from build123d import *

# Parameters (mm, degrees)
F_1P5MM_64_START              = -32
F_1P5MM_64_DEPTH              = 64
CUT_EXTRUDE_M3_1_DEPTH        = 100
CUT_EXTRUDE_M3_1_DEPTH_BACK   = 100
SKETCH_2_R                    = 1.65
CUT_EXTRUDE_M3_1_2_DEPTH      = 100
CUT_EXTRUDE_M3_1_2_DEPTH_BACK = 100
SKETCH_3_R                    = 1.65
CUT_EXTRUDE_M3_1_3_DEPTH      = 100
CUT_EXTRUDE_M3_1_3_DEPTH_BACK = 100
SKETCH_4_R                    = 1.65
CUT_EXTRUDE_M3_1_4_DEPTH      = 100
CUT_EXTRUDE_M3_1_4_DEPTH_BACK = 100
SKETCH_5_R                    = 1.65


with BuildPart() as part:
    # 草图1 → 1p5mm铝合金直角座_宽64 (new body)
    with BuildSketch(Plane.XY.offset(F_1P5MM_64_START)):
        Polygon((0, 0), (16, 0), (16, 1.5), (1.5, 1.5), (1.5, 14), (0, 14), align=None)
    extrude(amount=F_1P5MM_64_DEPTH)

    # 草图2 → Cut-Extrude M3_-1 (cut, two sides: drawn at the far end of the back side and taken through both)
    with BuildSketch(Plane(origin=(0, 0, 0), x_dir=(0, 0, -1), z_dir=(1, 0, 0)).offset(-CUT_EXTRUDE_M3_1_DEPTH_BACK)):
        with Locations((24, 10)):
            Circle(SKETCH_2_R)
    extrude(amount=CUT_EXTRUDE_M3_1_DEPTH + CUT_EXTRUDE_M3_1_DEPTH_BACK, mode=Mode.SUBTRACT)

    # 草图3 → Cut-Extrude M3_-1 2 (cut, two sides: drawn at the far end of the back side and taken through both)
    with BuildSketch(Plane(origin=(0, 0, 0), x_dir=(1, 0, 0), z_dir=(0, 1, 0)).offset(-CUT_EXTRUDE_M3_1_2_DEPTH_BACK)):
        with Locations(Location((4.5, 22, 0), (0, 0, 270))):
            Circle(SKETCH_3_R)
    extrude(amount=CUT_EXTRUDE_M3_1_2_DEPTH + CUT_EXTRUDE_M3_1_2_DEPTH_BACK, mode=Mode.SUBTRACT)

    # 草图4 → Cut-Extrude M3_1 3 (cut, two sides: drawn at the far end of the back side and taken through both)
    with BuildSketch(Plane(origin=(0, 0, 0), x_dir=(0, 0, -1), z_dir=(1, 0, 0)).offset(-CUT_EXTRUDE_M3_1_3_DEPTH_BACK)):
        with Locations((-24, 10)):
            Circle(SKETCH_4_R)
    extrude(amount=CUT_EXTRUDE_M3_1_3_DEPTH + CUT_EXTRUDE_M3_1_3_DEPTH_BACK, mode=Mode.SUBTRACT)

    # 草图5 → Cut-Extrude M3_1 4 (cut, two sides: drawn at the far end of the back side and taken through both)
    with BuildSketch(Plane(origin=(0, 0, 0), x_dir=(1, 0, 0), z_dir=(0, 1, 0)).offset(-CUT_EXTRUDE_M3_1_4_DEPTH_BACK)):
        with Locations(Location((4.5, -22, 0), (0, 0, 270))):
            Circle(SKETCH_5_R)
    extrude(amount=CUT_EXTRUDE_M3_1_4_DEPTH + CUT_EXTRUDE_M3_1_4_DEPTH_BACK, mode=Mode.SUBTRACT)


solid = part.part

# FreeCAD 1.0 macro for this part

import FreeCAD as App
import Part
import Sketcher
Q = App.Units.Quantity

doc = App.newDocument("Part")
body = doc.addObject("PartDesign::Body", "Body")

sketch1 = body.newObject("Sketcher::SketchObject", "Sketch")
sketch1.AttachmentSupport = (doc.getObject("XY_Plane"), [""])
sketch1.MapMode = "FlatFace"
sketch1.AttachmentOffset = App.Placement(App.Vector(0, 0, -32), App.Rotation())
sketch1.addGeometry([
    Part.LineSegment(App.Vector(0, 0, 0), App.Vector(16, 0, 0)),
    Part.LineSegment(App.Vector(16, 0, 0), App.Vector(16, 1.5, 0)),
    Part.LineSegment(App.Vector(16, 1.5, 0), App.Vector(1.5, 1.5, 0)),
    Part.LineSegment(App.Vector(1.5, 1.5, 0), App.Vector(1.5, 14, 0)),
    Part.LineSegment(App.Vector(1.5, 14, 0), App.Vector(0, 14, 0)),
    Part.LineSegment(App.Vector(0, 14, 0), App.Vector(0, 0, 0)),
], False)
sketch1.addConstraint([
    Sketcher.Constraint("Coincident", 0, 2, 1, 1),
    Sketcher.Constraint("Coincident", 1, 2, 2, 1),
    Sketcher.Constraint("Coincident", 2, 2, 3, 1),
    Sketcher.Constraint("Coincident", 3, 2, 4, 1),
    Sketcher.Constraint("Coincident", 4, 2, 5, 1),
    Sketcher.Constraint("Coincident", 5, 2, 0, 1),
    Sketcher.Constraint("Horizontal", 0),
    Sketcher.Constraint("Vertical", 1),
    Sketcher.Constraint("Horizontal", 2),
    Sketcher.Constraint("Vertical", 3),
    Sketcher.Constraint("Horizontal", 4),
    Sketcher.Constraint("Vertical", 5),
    Sketcher.Constraint("Coincident", 5, 2, -1, 1),
    Sketcher.Constraint("Equal", 4, 1),
    Sketcher.Constraint("DistanceX", 0, 1, 0, 2, Q("16 mm")),
    Sketcher.Constraint("DistanceY", 5, 2, 5, 1, Q("14 mm")),
    Sketcher.Constraint("DistanceX", 2, 2, 2, 1, Q("14.5 mm")),
])
pad1 = body.newObject("PartDesign::Pad", "Pad")
pad1.Profile = sketch1
pad1.Length = 64

sketch2 = body.newObject("Sketcher::SketchObject", "Sketch001")
sketch2.AttachmentSupport = (doc.getObject("YZ_Plane"), [""])
sketch2.MapMode = "FlatFace"
sketch2.addGeometry(Part.Circle(App.Vector(10, -24, 0), App.Vector(0, 0, 1), 1.65), False)
sketch2.addConstraint([
    Sketcher.Constraint("Diameter", 0, Q("3.3 mm")),
    Sketcher.Constraint("DistanceX", -1, 1, 0, 3, Q("10 mm")),
    Sketcher.Constraint("DistanceY", 0, 3, -1, 1, Q("24 mm")),
])
pocket1 = body.newObject("PartDesign::Pocket", "Pocket")
pocket1.Profile = sketch2
pocket1.Type = "ThroughAll"
pocket1.Midplane = True

sketch3 = body.newObject("Sketcher::SketchObject", "Sketch002")
sketch3.AttachmentSupport = (doc.getObject("XZ_Plane"), [""])
sketch3.MapMode = "FlatFace"
sketch3.addGeometry(Part.Circle(App.Vector(4.5, -22, 0), App.Vector(0, 0, 1), 1.65), False)
sketch3.addConstraint([
    Sketcher.Constraint("Diameter", 0, Q("3.3 mm")),
    Sketcher.Constraint("DistanceY", 0, 3, -1, 1, Q("22 mm")),
    Sketcher.Constraint("DistanceX", -1, 1, 0, 3, Q("4.5 mm")),
])
pocket2 = body.newObject("PartDesign::Pocket", "Pocket001")
pocket2.Profile = sketch3
pocket2.Type = "ThroughAll"
pocket2.Midplane = True

sketch4 = body.newObject("Sketcher::SketchObject", "Sketch003")
sketch4.AttachmentSupport = (doc.getObject("YZ_Plane"), [""])
sketch4.MapMode = "FlatFace"
sketch4.addGeometry(Part.Circle(App.Vector(10, 24, 0), App.Vector(0, 0, 1), 1.65), False)
sketch4.addConstraint([
    Sketcher.Constraint("Diameter", 0, Q("3.3 mm")),
    Sketcher.Constraint("DistanceX", -1, 1, 0, 3, Q("10 mm")),
    Sketcher.Constraint("DistanceY", -1, 1, 0, 3, Q("24 mm")),
])
pocket3 = body.newObject("PartDesign::Pocket", "Pocket002")
pocket3.Profile = sketch4
pocket3.Type = "ThroughAll"
pocket3.Midplane = True

sketch5 = body.newObject("Sketcher::SketchObject", "Sketch004")
sketch5.AttachmentSupport = (doc.getObject("XZ_Plane"), [""])
sketch5.MapMode = "FlatFace"
sketch5.addGeometry(Part.Circle(App.Vector(4.5, 22, 0), App.Vector(0, 0, 1), 1.65), False)
sketch5.addConstraint([
    Sketcher.Constraint("Diameter", 0, Q("3.3 mm")),
    Sketcher.Constraint("DistanceY", -1, 1, 0, 3, Q("22 mm")),
    Sketcher.Constraint("DistanceX", -1, 1, 0, 3, Q("4.5 mm")),
])
pocket4 = body.newObject("PartDesign::Pocket", "Pocket003")
pocket4.Profile = sketch5
pocket4.Type = "ThroughAll"
pocket4.Midplane = True

doc.recompute()
